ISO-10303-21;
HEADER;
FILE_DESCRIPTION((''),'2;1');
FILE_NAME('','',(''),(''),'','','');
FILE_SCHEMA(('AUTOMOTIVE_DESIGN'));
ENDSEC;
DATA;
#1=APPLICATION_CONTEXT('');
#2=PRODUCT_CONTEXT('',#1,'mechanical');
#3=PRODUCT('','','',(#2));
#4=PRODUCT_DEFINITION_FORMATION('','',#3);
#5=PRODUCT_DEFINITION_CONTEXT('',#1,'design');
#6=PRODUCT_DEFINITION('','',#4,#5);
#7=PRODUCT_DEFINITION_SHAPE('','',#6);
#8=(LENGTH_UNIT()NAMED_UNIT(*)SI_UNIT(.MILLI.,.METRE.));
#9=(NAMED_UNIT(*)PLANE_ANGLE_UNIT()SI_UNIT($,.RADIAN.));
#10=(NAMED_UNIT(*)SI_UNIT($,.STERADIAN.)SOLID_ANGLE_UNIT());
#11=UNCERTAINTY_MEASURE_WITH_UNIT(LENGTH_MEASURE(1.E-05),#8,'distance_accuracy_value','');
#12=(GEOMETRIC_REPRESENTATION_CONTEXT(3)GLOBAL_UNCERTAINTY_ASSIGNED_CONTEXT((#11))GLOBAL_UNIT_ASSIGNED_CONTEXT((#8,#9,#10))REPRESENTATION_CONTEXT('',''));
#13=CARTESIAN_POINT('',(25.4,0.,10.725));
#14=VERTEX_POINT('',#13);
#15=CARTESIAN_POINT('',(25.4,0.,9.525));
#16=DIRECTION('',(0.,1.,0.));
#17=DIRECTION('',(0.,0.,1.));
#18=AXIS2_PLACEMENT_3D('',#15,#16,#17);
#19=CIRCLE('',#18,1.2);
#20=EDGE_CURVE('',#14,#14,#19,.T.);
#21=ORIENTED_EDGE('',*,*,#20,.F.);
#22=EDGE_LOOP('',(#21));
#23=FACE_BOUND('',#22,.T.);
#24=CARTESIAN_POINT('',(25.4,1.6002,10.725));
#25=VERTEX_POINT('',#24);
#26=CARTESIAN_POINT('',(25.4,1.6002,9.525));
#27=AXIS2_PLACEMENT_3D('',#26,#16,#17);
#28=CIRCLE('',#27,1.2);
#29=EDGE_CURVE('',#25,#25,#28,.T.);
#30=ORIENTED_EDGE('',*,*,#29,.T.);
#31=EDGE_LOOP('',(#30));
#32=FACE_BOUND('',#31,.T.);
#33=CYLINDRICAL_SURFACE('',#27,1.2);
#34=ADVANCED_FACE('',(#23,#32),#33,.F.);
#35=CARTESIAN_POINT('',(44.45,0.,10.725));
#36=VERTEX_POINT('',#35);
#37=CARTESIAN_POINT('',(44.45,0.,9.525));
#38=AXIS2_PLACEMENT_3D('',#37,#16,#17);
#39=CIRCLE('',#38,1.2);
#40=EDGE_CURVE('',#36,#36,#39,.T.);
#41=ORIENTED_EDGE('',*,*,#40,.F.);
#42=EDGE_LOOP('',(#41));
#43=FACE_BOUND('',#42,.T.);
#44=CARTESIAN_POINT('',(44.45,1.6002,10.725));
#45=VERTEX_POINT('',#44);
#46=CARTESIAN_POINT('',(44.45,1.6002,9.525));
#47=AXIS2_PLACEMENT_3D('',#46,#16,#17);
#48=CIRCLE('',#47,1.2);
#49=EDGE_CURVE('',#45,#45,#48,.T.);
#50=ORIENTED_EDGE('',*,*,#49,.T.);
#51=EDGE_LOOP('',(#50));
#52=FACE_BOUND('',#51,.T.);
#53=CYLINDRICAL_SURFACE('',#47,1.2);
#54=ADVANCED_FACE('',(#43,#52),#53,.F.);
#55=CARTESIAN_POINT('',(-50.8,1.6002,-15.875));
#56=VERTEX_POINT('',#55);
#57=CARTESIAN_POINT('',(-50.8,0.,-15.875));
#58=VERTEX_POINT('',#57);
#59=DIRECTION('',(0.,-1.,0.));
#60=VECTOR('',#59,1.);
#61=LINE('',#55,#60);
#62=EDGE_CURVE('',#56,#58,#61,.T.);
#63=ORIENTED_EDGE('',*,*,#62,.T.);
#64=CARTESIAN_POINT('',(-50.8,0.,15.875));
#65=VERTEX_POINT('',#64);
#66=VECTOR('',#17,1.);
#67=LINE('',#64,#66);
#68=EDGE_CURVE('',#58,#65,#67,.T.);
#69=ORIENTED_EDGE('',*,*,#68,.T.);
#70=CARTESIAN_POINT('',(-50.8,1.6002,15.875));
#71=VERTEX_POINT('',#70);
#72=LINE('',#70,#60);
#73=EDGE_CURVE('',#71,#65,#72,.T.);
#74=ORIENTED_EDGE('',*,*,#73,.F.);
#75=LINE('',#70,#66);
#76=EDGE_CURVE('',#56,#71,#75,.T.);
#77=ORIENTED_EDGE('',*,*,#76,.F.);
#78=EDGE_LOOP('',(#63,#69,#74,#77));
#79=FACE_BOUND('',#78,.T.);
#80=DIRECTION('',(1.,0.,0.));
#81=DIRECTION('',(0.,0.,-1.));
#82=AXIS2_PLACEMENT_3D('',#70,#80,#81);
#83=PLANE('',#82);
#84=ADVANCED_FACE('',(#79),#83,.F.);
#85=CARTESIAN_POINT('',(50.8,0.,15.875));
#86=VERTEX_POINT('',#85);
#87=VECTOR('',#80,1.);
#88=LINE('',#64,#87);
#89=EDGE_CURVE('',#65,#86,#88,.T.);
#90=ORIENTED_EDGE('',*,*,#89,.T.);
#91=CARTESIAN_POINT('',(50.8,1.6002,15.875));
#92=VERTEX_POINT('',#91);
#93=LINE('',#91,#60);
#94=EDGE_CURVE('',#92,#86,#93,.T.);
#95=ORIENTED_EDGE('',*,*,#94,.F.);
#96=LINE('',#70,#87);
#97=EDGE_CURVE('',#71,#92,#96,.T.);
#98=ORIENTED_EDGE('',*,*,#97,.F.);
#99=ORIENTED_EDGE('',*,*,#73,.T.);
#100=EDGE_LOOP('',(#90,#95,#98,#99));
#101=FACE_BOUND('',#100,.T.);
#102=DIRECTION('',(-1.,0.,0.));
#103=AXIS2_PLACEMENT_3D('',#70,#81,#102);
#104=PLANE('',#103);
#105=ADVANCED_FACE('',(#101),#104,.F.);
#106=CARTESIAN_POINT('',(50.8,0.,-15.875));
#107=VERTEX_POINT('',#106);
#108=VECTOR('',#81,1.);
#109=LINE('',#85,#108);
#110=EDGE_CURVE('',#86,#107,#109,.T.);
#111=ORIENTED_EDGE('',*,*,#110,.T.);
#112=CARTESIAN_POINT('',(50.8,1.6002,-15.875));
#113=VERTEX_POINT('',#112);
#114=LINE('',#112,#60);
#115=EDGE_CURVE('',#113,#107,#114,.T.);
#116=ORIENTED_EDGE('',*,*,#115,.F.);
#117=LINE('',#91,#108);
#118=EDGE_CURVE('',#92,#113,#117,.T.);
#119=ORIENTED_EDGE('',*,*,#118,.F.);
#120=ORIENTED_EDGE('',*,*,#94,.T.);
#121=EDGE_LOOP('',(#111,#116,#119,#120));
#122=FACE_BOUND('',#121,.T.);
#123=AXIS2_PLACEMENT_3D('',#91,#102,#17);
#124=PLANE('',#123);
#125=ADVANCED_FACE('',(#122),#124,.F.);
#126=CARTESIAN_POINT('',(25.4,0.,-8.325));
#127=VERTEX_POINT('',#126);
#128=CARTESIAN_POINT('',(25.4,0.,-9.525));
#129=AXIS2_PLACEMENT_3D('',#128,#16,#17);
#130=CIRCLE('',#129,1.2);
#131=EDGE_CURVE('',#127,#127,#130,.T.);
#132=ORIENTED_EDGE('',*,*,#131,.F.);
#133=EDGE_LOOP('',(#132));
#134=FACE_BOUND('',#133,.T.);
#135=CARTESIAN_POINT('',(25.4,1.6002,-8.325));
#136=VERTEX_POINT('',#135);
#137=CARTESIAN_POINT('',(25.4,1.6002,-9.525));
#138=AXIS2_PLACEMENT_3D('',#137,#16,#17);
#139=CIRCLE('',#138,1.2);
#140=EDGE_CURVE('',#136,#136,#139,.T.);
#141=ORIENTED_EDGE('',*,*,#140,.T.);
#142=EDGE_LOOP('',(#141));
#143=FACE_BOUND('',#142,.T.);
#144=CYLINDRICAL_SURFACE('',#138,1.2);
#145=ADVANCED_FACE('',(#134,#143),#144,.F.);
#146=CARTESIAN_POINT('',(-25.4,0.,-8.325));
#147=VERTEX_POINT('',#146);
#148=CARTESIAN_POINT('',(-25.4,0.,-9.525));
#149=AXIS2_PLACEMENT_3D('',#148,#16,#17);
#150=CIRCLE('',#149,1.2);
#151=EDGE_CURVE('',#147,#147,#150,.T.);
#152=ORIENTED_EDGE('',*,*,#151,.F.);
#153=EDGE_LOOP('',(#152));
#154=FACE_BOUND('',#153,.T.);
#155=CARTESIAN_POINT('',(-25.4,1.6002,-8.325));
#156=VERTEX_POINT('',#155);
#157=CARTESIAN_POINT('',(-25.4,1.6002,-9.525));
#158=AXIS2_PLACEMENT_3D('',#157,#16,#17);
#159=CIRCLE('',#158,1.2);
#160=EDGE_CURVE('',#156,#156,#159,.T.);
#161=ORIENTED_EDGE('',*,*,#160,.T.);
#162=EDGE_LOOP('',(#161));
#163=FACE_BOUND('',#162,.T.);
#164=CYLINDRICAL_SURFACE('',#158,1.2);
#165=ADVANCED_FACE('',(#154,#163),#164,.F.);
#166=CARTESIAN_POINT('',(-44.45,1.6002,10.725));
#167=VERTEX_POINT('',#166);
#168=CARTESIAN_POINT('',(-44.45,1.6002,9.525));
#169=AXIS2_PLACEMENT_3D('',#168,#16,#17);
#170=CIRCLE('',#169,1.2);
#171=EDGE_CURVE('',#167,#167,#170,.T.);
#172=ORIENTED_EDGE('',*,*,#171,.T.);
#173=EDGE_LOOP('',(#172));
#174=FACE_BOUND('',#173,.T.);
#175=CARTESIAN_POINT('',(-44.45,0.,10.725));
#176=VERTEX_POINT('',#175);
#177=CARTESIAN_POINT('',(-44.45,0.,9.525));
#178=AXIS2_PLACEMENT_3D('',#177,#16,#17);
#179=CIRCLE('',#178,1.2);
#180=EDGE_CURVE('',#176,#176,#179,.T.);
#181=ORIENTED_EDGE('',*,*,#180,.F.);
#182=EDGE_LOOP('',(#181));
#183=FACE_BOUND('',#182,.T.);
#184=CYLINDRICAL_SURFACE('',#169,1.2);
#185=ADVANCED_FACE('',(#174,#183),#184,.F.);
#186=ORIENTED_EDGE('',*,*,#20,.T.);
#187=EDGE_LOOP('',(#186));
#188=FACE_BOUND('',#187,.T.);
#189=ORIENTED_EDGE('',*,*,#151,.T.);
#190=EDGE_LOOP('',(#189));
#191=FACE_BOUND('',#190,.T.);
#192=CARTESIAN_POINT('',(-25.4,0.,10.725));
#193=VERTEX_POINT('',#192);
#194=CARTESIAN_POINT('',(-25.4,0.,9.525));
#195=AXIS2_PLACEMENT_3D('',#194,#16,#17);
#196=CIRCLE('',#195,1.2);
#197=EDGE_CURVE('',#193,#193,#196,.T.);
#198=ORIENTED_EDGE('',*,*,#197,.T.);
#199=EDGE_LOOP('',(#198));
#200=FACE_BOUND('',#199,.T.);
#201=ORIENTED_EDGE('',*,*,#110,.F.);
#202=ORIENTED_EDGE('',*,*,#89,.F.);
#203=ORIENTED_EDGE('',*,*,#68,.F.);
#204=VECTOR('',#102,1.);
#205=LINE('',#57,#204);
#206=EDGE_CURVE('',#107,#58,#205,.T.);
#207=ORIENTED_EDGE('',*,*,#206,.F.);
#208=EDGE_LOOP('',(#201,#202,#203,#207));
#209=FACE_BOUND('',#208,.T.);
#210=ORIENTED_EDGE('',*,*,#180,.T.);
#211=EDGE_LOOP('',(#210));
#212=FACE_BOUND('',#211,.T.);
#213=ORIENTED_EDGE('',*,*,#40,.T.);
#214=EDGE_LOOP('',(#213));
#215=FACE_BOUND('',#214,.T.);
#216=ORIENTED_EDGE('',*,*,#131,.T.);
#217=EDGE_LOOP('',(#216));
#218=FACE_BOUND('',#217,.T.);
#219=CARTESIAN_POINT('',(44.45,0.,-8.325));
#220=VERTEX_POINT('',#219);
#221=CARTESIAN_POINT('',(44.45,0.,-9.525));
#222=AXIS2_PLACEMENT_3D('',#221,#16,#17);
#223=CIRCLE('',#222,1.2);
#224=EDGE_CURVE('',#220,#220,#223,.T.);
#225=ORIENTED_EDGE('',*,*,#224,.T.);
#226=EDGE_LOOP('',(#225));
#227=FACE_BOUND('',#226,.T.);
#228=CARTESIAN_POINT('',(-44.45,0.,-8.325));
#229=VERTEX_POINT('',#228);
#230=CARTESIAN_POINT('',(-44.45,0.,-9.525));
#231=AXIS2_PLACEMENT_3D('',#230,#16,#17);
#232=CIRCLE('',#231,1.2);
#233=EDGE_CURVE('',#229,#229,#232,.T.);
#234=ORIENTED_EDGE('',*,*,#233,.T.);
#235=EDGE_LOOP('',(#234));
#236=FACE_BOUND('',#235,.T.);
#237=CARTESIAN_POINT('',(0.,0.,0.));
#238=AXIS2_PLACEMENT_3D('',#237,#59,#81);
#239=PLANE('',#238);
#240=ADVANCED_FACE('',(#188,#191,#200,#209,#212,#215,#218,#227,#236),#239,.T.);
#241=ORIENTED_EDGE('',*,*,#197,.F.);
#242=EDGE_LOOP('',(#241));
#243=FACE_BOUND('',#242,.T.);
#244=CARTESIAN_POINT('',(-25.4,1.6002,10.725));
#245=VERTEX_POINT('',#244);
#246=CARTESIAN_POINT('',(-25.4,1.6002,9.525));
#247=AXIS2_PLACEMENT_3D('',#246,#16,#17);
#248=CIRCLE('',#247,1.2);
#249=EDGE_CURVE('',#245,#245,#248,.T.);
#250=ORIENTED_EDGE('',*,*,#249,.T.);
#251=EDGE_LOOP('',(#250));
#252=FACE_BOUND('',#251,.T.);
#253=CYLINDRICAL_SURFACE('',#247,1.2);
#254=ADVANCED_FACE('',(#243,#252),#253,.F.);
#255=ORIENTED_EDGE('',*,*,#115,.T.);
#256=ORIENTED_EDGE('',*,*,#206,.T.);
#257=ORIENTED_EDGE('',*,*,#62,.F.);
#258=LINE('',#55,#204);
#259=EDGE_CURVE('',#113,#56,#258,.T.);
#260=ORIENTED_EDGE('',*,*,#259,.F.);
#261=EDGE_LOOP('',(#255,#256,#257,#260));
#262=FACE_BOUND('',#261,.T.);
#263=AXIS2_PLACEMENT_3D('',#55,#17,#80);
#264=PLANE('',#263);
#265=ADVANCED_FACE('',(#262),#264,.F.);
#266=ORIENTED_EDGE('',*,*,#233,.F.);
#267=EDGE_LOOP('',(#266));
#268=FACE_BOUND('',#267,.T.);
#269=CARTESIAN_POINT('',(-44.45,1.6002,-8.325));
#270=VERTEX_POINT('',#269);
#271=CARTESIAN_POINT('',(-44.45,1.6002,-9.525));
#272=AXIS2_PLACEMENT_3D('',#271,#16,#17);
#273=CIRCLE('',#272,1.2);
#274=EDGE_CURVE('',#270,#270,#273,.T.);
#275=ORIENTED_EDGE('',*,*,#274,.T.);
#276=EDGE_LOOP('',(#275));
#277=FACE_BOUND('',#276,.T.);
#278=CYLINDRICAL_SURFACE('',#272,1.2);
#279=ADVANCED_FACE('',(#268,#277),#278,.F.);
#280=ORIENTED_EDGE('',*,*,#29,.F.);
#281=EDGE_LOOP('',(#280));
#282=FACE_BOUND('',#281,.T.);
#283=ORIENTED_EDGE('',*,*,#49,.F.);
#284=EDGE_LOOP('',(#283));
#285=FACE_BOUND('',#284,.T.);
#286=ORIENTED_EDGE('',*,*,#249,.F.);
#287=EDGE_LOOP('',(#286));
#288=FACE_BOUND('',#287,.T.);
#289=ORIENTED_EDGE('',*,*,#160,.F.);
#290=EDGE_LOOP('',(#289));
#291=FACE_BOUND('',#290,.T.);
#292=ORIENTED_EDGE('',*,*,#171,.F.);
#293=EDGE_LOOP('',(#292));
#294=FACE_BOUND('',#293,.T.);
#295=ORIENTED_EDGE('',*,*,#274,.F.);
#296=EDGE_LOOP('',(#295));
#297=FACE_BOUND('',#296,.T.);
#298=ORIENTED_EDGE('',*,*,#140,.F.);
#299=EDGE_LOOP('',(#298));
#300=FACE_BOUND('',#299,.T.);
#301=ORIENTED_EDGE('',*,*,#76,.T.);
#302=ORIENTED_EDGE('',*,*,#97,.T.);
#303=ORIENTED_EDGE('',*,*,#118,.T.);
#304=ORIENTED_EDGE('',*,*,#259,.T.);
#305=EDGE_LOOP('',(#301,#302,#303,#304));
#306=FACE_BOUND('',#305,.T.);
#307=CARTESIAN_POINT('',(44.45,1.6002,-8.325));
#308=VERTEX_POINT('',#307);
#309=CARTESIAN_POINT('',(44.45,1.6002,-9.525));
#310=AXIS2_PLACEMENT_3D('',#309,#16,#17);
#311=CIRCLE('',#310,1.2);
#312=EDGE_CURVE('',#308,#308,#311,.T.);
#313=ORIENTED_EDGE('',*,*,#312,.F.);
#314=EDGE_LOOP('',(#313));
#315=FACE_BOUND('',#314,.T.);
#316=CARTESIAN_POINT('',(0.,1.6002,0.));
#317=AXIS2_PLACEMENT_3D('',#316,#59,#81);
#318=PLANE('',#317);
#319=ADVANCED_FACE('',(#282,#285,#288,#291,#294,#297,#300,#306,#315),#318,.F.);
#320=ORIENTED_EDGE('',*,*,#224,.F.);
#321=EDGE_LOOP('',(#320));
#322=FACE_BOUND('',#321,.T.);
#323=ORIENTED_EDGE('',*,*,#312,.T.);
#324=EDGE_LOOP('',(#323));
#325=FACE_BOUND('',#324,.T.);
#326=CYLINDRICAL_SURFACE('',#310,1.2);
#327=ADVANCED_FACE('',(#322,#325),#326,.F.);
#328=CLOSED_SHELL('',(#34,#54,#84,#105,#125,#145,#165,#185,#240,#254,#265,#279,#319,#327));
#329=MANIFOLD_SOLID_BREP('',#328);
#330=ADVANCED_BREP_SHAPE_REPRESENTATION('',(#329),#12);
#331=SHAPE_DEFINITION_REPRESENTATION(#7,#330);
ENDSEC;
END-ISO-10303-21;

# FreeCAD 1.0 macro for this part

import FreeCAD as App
import Part
import Sketcher
Q = App.Units.Quantity


def add_polygon(sketch, points):
    """Adds a closed chain of lines whose ends are joined by coincident constraints."""
    first, n = sketch.GeometryCount, len(points)
    for a, b in zip(points, points[1:] + points[:1]):
        sketch.addGeometry(Part.LineSegment(App.Vector(*a, 0), App.Vector(*b, 0)), False)
    for i in range(n):
        sketch.addConstraint(Sketcher.Constraint("Coincident", first + i, 2, first + (i + 1) % n, 1))

doc = App.newDocument("Part")
body = doc.addObject("PartDesign::Body", "Body")

# Sketch on XZ plane
sketch1 = body.newObject("Sketcher::SketchObject", "Sketch")
sketch1.AttachmentSupport = (doc.getObject("XZ_Plane"), [""])
sketch1.MapMode = "FlatFace"
add_polygon(sketch1, [(-51, -16), (-51, 16), (51, 16), (51, -16)])  # lines 0-3
sketch1.addConstraint(Sketcher.Constraint("Vertical", 0))
sketch1.addConstraint(Sketcher.Constraint("Horizontal", 1))
sketch1.addConstraint(Sketcher.Constraint("Vertical", 2))
sketch1.addConstraint(Sketcher.Constraint("Horizontal", 3))
sketch1.addConstraint(Sketcher.Constraint("Symmetric", 0, 2, 2, 2, -1, 1))
sketch1.addConstraint(Sketcher.Constraint("DistanceX", 1, 1, 1, 2, Q("4 in")))
sketch1.addConstraint(Sketcher.Constraint("DistanceY", 0, 1, 0, 2, Q("1.25 in")))
pad1 = body.newObject("PartDesign::Pad", "Pad")
pad1.Profile = sketch1
pad1.Length = Q("0.063 in")
pad1.Reversed = True

# Sketch on XZ plane
sketch2 = body.newObject("Sketcher::SketchObject", "Sketch001")
sketch2.AttachmentSupport = (doc.getObject("XZ_Plane"), [""])
sketch2.MapMode = "FlatFace"
sketch2.AttachmentOffset = App.Placement(App.Vector(0, 0, -0.063 * 25.4), App.Rotation())
sketch2.addGeometry(Part.Circle(App.Vector(-25.4, -9.5, 0), App.Vector(0, 0, 1), 1.2), False)
sketch2.addGeometry(Part.Circle(App.Vector(-44.5, -9.5, 0), App.Vector(0, 0, 1), 1.2), False)
sketch2.addGeometry(Part.Circle(App.Vector(-44.5, 9.5, 0), App.Vector(0, 0, 1), 1.2), False)
sketch2.addGeometry(Part.Circle(App.Vector(-25.4, 9.5, 0), App.Vector(0, 0, 1), 1.2), False)
sketch2.addConstraint(Sketcher.Constraint("Equal", 0, 1))
sketch2.addConstraint(Sketcher.Constraint("Equal", 1, 2))
sketch2.addConstraint(Sketcher.Constraint("Equal", 2, 3))
sketch2.addConstraint(Sketcher.Constraint("Symmetric", 1, 3, 2, 3, -1))
sketch2.addConstraint(Sketcher.Constraint("Symmetric", 0, 3, 3, 3, -1))
sketch2.addConstraint(Sketcher.Constraint("Horizontal", 0, 3, 1, 3))
sketch2.addConstraint(Sketcher.Constraint("DistanceX", 0, 3, -1, 1, Q("1 in")))
sketch2.addConstraint(Sketcher.Constraint("Diameter", 0, 2.4))
sketch2.addConstraint(Sketcher.Constraint("DistanceX", 1, 3, -1, 1, Q("1.75 in")))
sketch2.addConstraint(Sketcher.Constraint("DistanceY", 1, 3, 2, 3, Q("0.75 in")))
doc.recompute()
hole = body.newObject("PartDesign::Hole", "Hole")
hole.Profile = sketch2
hole.ThreadType = "None"
hole.Diameter = 2.4
hole.DepthType = "ThroughAll"
hole.Reversed = True
doc.recompute()

mirrored = body.newObject("PartDesign::Mirrored", "Mirrored")
mirrored.Originals = [hole]
mirrored.MirrorPlane = (doc.getObject("YZ_Plane"), [""])
body.Tip = mirrored

doc.recompute()
